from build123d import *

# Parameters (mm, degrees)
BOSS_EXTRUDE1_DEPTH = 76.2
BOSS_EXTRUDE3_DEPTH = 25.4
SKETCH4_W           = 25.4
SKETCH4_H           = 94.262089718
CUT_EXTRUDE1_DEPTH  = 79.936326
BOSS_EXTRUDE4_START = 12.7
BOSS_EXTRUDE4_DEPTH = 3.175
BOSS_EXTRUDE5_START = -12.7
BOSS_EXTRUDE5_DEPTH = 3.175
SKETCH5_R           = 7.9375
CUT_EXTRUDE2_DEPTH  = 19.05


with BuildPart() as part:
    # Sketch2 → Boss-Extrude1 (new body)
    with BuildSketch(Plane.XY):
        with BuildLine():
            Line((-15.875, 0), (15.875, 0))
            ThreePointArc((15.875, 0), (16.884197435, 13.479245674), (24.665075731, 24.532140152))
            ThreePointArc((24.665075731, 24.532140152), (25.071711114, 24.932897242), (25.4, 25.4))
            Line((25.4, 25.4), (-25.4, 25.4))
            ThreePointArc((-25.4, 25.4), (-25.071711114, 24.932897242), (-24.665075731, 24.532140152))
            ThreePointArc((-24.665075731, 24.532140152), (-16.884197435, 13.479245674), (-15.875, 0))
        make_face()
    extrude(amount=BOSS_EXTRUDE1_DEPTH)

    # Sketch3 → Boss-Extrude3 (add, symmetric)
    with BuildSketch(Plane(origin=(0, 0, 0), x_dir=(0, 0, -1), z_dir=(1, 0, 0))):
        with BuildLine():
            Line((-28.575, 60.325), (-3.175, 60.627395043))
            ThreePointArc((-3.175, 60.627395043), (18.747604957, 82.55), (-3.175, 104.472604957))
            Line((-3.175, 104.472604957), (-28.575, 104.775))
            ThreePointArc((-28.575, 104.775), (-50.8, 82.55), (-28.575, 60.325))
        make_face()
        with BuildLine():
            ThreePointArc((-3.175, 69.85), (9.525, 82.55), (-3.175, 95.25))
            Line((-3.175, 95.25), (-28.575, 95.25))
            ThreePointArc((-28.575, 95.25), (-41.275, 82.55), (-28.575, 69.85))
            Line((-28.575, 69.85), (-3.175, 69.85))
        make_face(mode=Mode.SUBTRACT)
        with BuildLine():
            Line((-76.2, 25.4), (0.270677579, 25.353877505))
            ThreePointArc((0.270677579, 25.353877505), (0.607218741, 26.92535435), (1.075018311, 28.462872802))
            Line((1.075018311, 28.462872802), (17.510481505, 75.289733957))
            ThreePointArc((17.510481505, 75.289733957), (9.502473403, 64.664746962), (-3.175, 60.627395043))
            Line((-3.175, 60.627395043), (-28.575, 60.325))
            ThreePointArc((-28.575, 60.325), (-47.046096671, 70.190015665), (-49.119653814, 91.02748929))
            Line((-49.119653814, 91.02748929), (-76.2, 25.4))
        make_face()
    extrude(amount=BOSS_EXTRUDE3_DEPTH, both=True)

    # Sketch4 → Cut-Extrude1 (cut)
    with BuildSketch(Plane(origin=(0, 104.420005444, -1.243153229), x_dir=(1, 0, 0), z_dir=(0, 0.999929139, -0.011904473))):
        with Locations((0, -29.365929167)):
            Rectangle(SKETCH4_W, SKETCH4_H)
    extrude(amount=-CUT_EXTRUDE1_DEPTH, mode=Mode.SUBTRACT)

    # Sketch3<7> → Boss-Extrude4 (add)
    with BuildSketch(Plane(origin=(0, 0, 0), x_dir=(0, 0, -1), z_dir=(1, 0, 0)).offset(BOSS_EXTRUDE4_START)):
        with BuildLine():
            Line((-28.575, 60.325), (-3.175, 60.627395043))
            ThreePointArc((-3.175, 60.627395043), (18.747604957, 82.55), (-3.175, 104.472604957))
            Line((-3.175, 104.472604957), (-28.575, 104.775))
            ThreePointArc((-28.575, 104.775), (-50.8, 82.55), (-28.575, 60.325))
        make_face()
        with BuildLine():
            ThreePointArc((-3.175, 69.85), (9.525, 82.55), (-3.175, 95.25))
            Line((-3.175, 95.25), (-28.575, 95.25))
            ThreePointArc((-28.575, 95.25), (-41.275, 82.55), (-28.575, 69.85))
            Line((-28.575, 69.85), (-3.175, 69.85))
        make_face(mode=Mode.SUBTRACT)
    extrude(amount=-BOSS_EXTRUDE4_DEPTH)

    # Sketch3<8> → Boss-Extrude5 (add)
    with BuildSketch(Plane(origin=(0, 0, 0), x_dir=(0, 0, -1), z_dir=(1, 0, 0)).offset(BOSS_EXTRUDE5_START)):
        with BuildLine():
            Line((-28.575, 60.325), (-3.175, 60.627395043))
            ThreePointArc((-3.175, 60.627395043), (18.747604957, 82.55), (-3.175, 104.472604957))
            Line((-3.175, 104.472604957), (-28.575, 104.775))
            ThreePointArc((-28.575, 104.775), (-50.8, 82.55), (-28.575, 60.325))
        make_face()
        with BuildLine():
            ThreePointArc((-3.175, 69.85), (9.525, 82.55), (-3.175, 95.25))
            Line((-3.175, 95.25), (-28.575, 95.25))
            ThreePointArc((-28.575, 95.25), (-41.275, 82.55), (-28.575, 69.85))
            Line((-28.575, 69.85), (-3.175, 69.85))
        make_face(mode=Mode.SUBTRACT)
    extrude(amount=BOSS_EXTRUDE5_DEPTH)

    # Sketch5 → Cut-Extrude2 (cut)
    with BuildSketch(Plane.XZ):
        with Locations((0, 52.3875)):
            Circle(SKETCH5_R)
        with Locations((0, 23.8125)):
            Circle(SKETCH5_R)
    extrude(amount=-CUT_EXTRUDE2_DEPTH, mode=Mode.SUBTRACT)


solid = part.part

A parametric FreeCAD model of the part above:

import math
import FreeCAD as App
import Part
import Sketcher

V = App.Vector
Q = App.Units.Quantity


def add_polygon(sketch, points):
    """Adds a closed chain of lines whose ends are joined by coincident constraints."""
    first, n = sketch.GeometryCount, len(points)
    for a, b in zip(points, points[1:] + points[:1]):
        sketch.addGeometry(Part.LineSegment(App.Vector(*a, 0), App.Vector(*b, 0)), False)
    for i in range(n):
        sketch.addConstraint(Sketcher.Constraint("Coincident", first + i, 2, first + (i + 1) % n, 1))

doc = App.newDocument("Part")
body = doc.addObject("PartDesign::Body", "Body")

# Sketch on XY plane
sketch1 = body.newObject("Sketcher::SketchObject", "Sketch")
sketch1.AttachmentSupport = (doc.getObject("XY_Plane"), [""])
sketch1.MapMode = "FlatFace"
sketch1.addGeometry(Part.LineSegment(V(-15.9, 0, 0), V(15.9, 0, 0)), False)
sketch1.addGeometry(Part.ArcOfCircle(Part.Circle(V(40.8, 4.9, 0), V(0, 0, 1), 25.4), math.radians(129), math.radians(191)), False)
sketch1.addGeometry(Part.ArcOfCircle(Part.Circle(V(22.6, 27, 0), V(0, 0, 1), 3.2), math.radians(-51), math.radians(-30)), False)
sketch1.addGeometry(Part.LineSegment(V(25.4, 25.4, 0), V(-25.4, 25.4, 0)), False)
sketch1.addGeometry(Part.ArcOfCircle(Part.Circle(V(-22.6, 27, 0), V(0, 0, 1), 3.2), math.radians(-150), math.radians(-129)), False)
sketch1.addGeometry(Part.ArcOfCircle(Part.Circle(V(-40.8, 4.9, 0), V(0, 0, 1), 25.4), math.radians(-11), math.radians(51)), False)
sketch1.addConstraint(Sketcher.Constraint("Coincident", 0, 2, 1, 2))
sketch1.addConstraint(Sketcher.Constraint("Tangent", 1, 1, 2, 1))
sketch1.addConstraint(Sketcher.Constraint("Coincident", 2, 2, 3, 1))
sketch1.addConstraint(Sketcher.Constraint("Coincident", 3, 2, 4, 1))
sketch1.addConstraint(Sketcher.Constraint("Tangent", 4, 2, 5, 2))
sketch1.addConstraint(Sketcher.Constraint("Coincident", 5, 1, 0, 1))
sketch1.addConstraint(Sketcher.Constraint("Horizontal", 0))
sketch1.addConstraint(Sketcher.Constraint("Horizontal", 3))
sketch1.addConstraint(Sketcher.Constraint("Equal", 2, 4))
sketch1.addConstraint(Sketcher.Constraint("Equal", 1, 5))
sketch1.addConstraint(Sketcher.Constraint("Symmetric", 0, 2, 5, 1, -1, 1))
sketch1.addConstraint(Sketcher.Constraint("Symmetric", 2, 3, 4, 3, -2))
sketch1.addConstraint(Sketcher.Constraint("Radius", 1, Q("1 in")))
sketch1.addConstraint(Sketcher.Constraint("DistanceX", 3, 2, 3, 1, Q("2 in")))
sketch1.addConstraint(Sketcher.Constraint("DistanceY", -1, 1, 2, 2, Q("1 in")))
sketch1.addConstraint(Sketcher.Constraint("Radius", 2, Q("0.125 in")))
sketch1.addConstraint(Sketcher.Constraint("DistanceX", 0, 1, 0, 2, Q("1.25 in")))
sketch1.addConstraint(Sketcher.Constraint("DistanceX", -1, 1, 1, 3, Q("40.795601 mm")))
pad1 = body.newObject("PartDesign::Pad", "Pad")
pad1.Profile = sketch1
pad1.Length = Q("3 in")

# Sketch on YZ plane
sketch2 = body.newObject("Sketcher::SketchObject", "Sketch001")
sketch2.AttachmentSupport = (doc.getObject("YZ_Plane"), [""])
sketch2.MapMode = "FlatFace"
sketch2.addGeometry(Part.ArcOfCircle(Part.Circle(V(82.5, 28.6, 0), V(0, 0, 1), 22.2), math.radians(0), math.radians(68)), False)
sketch2.addGeometry(Part.LineSegment(V(91, 49.1, 0), V(25.4, 76.2, 0)), False)
sketch2.addGeometry(Part.LineSegment(V(25.4, 76.2, 0), V(25.4, -0.3, 0)), False)
sketch2.addGeometry(Part.ArcOfCircle(Part.Circle(V(22.2, -19.1, 0), V(0, 0, 1), 19.1), math.radians(70.66), math.radians(80.33)), False)
sketch2.addGeometry(Part.LineSegment(V(28.5, -1.1, 0), V(75.3, -17.5, 0)), False)
sketch2.addGeometry(Part.ArcOfCircle(Part.Circle(V(82.5, 3.2, 0), V(0, 0, 1), 21.9), math.radians(-109), math.radians(0)), False)
sketch2.addGeometry(Part.LineSegment(V(104.5, 3.2, 0), V(104.8, 28.6, 0)), False)
sketch2.addGeometry(Part.ArcOfCircle(Part.Circle(V(82.5, 3.2, 0), V(0, 0, 1), 12.7), math.radians(180), math.radians(360)), False)
sketch2.addGeometry(Part.LineSegment(V(69.8, 3.2, 0), V(69.8, 28.6, 0)), False)
sketch2.addGeometry(Part.ArcOfCircle(Part.Circle(V(82.5, 28.6, 0), V(0, 0, 1), 12.7), math.radians(0), math.radians(180)), False)
sketch2.addGeometry(Part.LineSegment(V(95.2, 28.6, 0), V(95.2, 3.2, 0)), False)
sketch2.addConstraint(Sketcher.Constraint("Tangent", 0, 2, 1, 1))
sketch2.addConstraint(Sketcher.Constraint("Coincident", 1, 2, 2, 1))
sketch2.addConstraint(Sketcher.Constraint("Coincident", 2, 2, 3, 2))
sketch2.addConstraint(Sketcher.Constraint("Tangent", 3, 1, 4, 1))
sketch2.addConstraint(Sketcher.Constraint("Tangent", 4, 2, 5, 1))
sketch2.addConstraint(Sketcher.Constraint("Coincident", 5, 2, 6, 1))
sketch2.addConstraint(Sketcher.Constraint("Coincident", 6, 2, 0, 1))
sketch2.addConstraint(Sketcher.Constraint("Tangent", 7, 1, 8, 1))
sketch2.addConstraint(Sketcher.Constraint("Tangent", 8, 2, 9, 2))
sketch2.addConstraint(Sketcher.Constraint("Tangent", 9, 1, 10, 1))
sketch2.addConstraint(Sketcher.Constraint("Tangent", 10, 2, 7, 2))
sketch2.addConstraint(Sketcher.Constraint("Vertical", 8))
sketch2.addConstraint(Sketcher.Constraint("Vertical", 10))
sketch2.addConstraint(Sketcher.Constraint("Coincident", 7, 3, 5, 3))
sketch2.addConstraint(Sketcher.Constraint("Coincident", 9, 3, 0, 3))
sketch2.addConstraint(Sketcher.Constraint("Horizontal", 7, 3, 5, 2))
sketch2.addConstraint(Sketcher.Constraint("Horizontal", 9, 3, 6, 2))
sketch2.addConstraint(Sketcher.Constraint("Radius", 7, Q("0.5 in")))
sketch2.addConstraint(Sketcher.Constraint("DistanceY", 8, 1, 8, 2, Q("1 in")))
sketch2.addConstraint(Sketcher.Constraint("Radius", 3, Q("0.75 in")))
sketch2.addConstraint(Sketcher.Constraint("DistanceX", -1, 1, 1, 2, Q("1 in")))
sketch2.addConstraint(Sketcher.Constraint("DistanceY", -1, 1, 1, 2, Q("3 in")))
sketch2.addConstraint(Sketcher.Constraint("Radius", 0, Q("0.875 in")))
sketch2.addConstraint(Sketcher.Constraint("DistanceX", -1, 1, 0, 3, Q("3.25 in")))
sketch2.addConstraint(Sketcher.Constraint("DistanceY", 3, 3, -1, 1, Q("0.75 in")))
sketch2.addConstraint(Sketcher.Constraint("DistanceY", -1, 1, 0, 3, Q("1.125 in")))
sketch2.addConstraint(Sketcher.Constraint("Radius", 5, Q("21.922605 mm")))
sketch2.addConstraint(Sketcher.Constraint("Distance", 2, Q("76.470691 mm")))
sketch2.addConstraint(Sketcher.Constraint("DistanceY", 3, 1, -1, 1, Q("1.075018 mm")))
pad2 = body.newObject("PartDesign::Pad", "Pad001")
pad2.Profile = sketch2
pad2.Length = Q("2 in")
pad2.Midplane = True

# Sketch on an angled plane
sketch3 = body.newObject("Sketcher::SketchObject", "Sketch002")
sketch3.Placement = App.Placement(V(0, 104.420005, -1.243153), App.Rotation(V(1, 0, 0), V(0, -0.011904473, -0.999929139), V(0, 0.999929139, -0.011904473), "ZXY"))
add_polygon(sketch3, [(-13, 18), (-13, -76), (13, -76), (13, 18)])  # lines 0-3
sketch3.addConstraint(Sketcher.Constraint("Vertical", 0))
sketch3.addConstraint(Sketcher.Constraint("Horizontal", 1))
sketch3.addConstraint(Sketcher.Constraint("Vertical", 2))
sketch3.addConstraint(Sketcher.Constraint("Horizontal", 3))
sketch3.addConstraint(Sketcher.Constraint("DistanceX", 1, 1, 1, 2, Q("1 in")))
sketch3.addConstraint(Sketcher.Constraint("DistanceX", 0, 2, -1, 1, Q("0.5 in")))
sketch3.addConstraint(Sketcher.Constraint("DistanceY", 0, 2, 0, 1, Q("94.26209 mm")))
sketch3.addConstraint(Sketcher.Constraint("DistanceY", 0, 2, -1, 1, Q("76.496974 mm")))
pocket1 = body.newObject("PartDesign::Pocket", "Pocket")
pocket1.Profile = sketch3
pocket1.Length = 79.936326

# Sketch on YZ plane
sketch4 = body.newObject("Sketcher::SketchObject", "Sketch003")
sketch4.AttachmentSupport = (doc.getObject("YZ_Plane"), [""])
sketch4.MapMode = "FlatFace"
sketch4.AttachmentOffset = App.Placement(V(0, 0, 0.5 * 25.4), App.Rotation())
sketch4.addGeometry(Part.LineSegment(V(60, 29, 0), V(61, 3, 0)), False)
sketch4.addGeometry(Part.ArcOfCircle(Part.Circle(V(83, 3, 0), V(0, 0, 1), 22), math.radians(180), math.radians(360)), False)
sketch4.addGeometry(Part.LineSegment(V(104, 3, 0), V(105, 29, 0)), False)
sketch4.addGeometry(Part.ArcOfCircle(Part.Circle(V(83, 29, 0), V(0, 0, 1), 22), math.radians(0), math.radians(180)), False)
sketch4.addGeometry(Part.ArcOfCircle(Part.Circle(V(83, 3, 0), V(0, 0, 1), 13), math.radians(180), math.radians(360)), False)
sketch4.addGeometry(Part.LineSegment(V(70, 3, 0), V(70, 29, 0)), False)
sketch4.addGeometry(Part.ArcOfCircle(Part.Circle(V(83, 29, 0), V(0, 0, 1), 13), math.radians(0), math.radians(180)), False)
sketch4.addGeometry(Part.LineSegment(V(95, 29, 0), V(95, 3, 0)), False)
sketch4.addConstraint(Sketcher.Constraint("Coincident", 0, 2, 1, 1))
sketch4.addConstraint(Sketcher.Constraint("Coincident", 1, 2, 2, 1))
sketch4.addConstraint(Sketcher.Constraint("Coincident", 2, 2, 3, 1))
sketch4.addConstraint(Sketcher.Constraint("Coincident", 3, 2, 0, 1))
sketch4.addConstraint(Sketcher.Constraint("Tangent", 4, 1, 5, 1))
sketch4.addConstraint(Sketcher.Constraint("Tangent", 5, 2, 6, 2))
sketch4.addConstraint(Sketcher.Constraint("Tangent", 6, 1, 7, 1))
sketch4.addConstraint(Sketcher.Constraint("Tangent", 7, 2, 4, 2))
sketch4.addConstraint(Sketcher.Constraint("Vertical", 5))
sketch4.addConstraint(Sketcher.Constraint("Vertical", 7))
sketch4.addConstraint(Sketcher.Constraint("Coincident", 4, 3, 1, 3))
sketch4.addConstraint(Sketcher.Constraint("Coincident", 6, 3, 3, 3))
sketch4.addConstraint(Sketcher.Constraint("Horizontal", 4, 3, 0, 2))
sketch4.addConstraint(Sketcher.Constraint("Horizontal", 0, 2, 1, 2))
sketch4.addConstraint(Sketcher.Constraint("Horizontal", 6, 3, 2, 2))
sketch4.addConstraint(Sketcher.Constraint("Horizontal", 2, 2, 3, 2))
sketch4.addConstraint(Sketcher.Constraint("Radius", 4, Q("0.5 in")))
sketch4.addConstraint(Sketcher.Constraint("DistanceY", 5, 1, 5, 2, Q("1 in")))
sketch4.addConstraint(Sketcher.Constraint("Radius", 3, Q("0.875 in")))
sketch4.addConstraint(Sketcher.Constraint("DistanceX", -1, 1, 1, 3, Q("3.25 in")))
sketch4.addConstraint(Sketcher.Constraint("DistanceY", -1, 1, 1, 3, Q("0.125 in")))
sketch4.addConstraint(Sketcher.Constraint("Radius", 1, Q("21.922605 mm")))
pad3 = body.newObject("PartDesign::Pad", "Pad002")
pad3.Profile = sketch4
pad3.Length = Q("0.125 in")
pad3.Reversed = True

# Sketch on YZ plane
sketch5 = body.newObject("Sketcher::SketchObject", "Sketch004")
sketch5.AttachmentSupport = (doc.getObject("YZ_Plane"), [""])
sketch5.MapMode = "FlatFace"
sketch5.AttachmentOffset = App.Placement(V(0, 0, -0.5 * 25.4), App.Rotation())
sketch5.addGeometry(Part.LineSegment(V(60, 29, 0), V(61, 3, 0)), False)
sketch5.addGeometry(Part.ArcOfCircle(Part.Circle(V(83, 3, 0), V(0, 0, 1), 22), math.radians(180), math.radians(360)), False)
sketch5.addGeometry(Part.LineSegment(V(104, 3, 0), V(105, 29, 0)), False)
sketch5.addGeometry(Part.ArcOfCircle(Part.Circle(V(83, 29, 0), V(0, 0, 1), 22), math.radians(0), math.radians(180)), False)
sketch5.addGeometry(Part.ArcOfCircle(Part.Circle(V(83, 3, 0), V(0, 0, 1), 13), math.radians(180), math.radians(360)), False)
sketch5.addGeometry(Part.LineSegment(V(70, 3, 0), V(70, 29, 0)), False)
sketch5.addGeometry(Part.ArcOfCircle(Part.Circle(V(83, 29, 0), V(0, 0, 1), 13), math.radians(0), math.radians(180)), False)
sketch5.addGeometry(Part.LineSegment(V(95, 29, 0), V(95, 3, 0)), False)
sketch5.addConstraint(Sketcher.Constraint("Coincident", 0, 2, 1, 1))
sketch5.addConstraint(Sketcher.Constraint("Coincident", 1, 2, 2, 1))
sketch5.addConstraint(Sketcher.Constraint("Coincident", 2, 2, 3, 1))
sketch5.addConstraint(Sketcher.Constraint("Coincident", 3, 2, 0, 1))
sketch5.addConstraint(Sketcher.Constraint("Tangent", 4, 1, 5, 1))
sketch5.addConstraint(Sketcher.Constraint("Tangent", 5, 2, 6, 2))
sketch5.addConstraint(Sketcher.Constraint("Tangent", 6, 1, 7, 1))
sketch5.addConstraint(Sketcher.Constraint("Tangent", 7, 2, 4, 2))
sketch5.addConstraint(Sketcher.Constraint("Vertical", 5))
sketch5.addConstraint(Sketcher.Constraint("Vertical", 7))
sketch5.addConstraint(Sketcher.Constraint("Coincident", 4, 3, 1, 3))
sketch5.addConstraint(Sketcher.Constraint("Coincident", 6, 3, 3, 3))
sketch5.addConstraint(Sketcher.Constraint("Horizontal", 4, 3, 0, 2))
sketch5.addConstraint(Sketcher.Constraint("Horizontal", 0, 2, 1, 2))
sketch5.addConstraint(Sketcher.Constraint("Horizontal", 6, 3, 2, 2))
sketch5.addConstraint(Sketcher.Constraint("Horizontal", 2, 2, 3, 2))
sketch5.addConstraint(Sketcher.Constraint("Radius", 4, Q("0.5 in")))
sketch5.addConstraint(Sketcher.Constraint("DistanceY", 5, 1, 5, 2, Q("1 in")))
sketch5.addConstraint(Sketcher.Constraint("Radius", 3, Q("0.875 in")))
sketch5.addConstraint(Sketcher.Constraint("DistanceX", -1, 1, 1, 3, Q("3.25 in")))
sketch5.addConstraint(Sketcher.Constraint("DistanceY", -1, 1, 1, 3, Q("0.125 in")))
sketch5.addConstraint(Sketcher.Constraint("Radius", 1, Q("21.922605 mm")))
pad4 = body.newObject("PartDesign::Pad", "Pad003")
pad4.Profile = sketch5
pad4.Length = Q("0.125 in")

# Sketch on XZ plane
sketch6 = body.newObject("Sketcher::SketchObject", "Sketch005")
sketch6.AttachmentSupport = (doc.getObject("XZ_Plane"), [""])
sketch6.MapMode = "FlatFace"
sketch6.addGeometry(Part.Circle(V(0, 52, 0), V(0, 0, 1), 8), False)
sketch6.addGeometry(Part.Circle(V(0, 24, 0), V(0, 0, 1), 8), False)
sketch6.addConstraint(Sketcher.Constraint("Equal", 0, 1))
sketch6.addConstraint(Sketcher.Constraint("PointOnObject", 0, 3, -2))
sketch6.addConstraint(Sketcher.Constraint("PointOnObject", 1, 3, -2))
sketch6.addConstraint(Sketcher.Constraint("Diameter", 0, Q("0.625 in")))
sketch6.addConstraint(Sketcher.Constraint("DistanceY", -1, 1, 0, 3, Q("2.0625 in")))
sketch6.addConstraint(Sketcher.Constraint("DistanceY", -1, 1, 1, 3, Q("0.9375 in")))
pocket2 = body.newObject("PartDesign::Pocket", "Pocket001")
pocket2.Profile = sketch6
pocket2.Length = Q("0.75 in")

doc.recompute()
